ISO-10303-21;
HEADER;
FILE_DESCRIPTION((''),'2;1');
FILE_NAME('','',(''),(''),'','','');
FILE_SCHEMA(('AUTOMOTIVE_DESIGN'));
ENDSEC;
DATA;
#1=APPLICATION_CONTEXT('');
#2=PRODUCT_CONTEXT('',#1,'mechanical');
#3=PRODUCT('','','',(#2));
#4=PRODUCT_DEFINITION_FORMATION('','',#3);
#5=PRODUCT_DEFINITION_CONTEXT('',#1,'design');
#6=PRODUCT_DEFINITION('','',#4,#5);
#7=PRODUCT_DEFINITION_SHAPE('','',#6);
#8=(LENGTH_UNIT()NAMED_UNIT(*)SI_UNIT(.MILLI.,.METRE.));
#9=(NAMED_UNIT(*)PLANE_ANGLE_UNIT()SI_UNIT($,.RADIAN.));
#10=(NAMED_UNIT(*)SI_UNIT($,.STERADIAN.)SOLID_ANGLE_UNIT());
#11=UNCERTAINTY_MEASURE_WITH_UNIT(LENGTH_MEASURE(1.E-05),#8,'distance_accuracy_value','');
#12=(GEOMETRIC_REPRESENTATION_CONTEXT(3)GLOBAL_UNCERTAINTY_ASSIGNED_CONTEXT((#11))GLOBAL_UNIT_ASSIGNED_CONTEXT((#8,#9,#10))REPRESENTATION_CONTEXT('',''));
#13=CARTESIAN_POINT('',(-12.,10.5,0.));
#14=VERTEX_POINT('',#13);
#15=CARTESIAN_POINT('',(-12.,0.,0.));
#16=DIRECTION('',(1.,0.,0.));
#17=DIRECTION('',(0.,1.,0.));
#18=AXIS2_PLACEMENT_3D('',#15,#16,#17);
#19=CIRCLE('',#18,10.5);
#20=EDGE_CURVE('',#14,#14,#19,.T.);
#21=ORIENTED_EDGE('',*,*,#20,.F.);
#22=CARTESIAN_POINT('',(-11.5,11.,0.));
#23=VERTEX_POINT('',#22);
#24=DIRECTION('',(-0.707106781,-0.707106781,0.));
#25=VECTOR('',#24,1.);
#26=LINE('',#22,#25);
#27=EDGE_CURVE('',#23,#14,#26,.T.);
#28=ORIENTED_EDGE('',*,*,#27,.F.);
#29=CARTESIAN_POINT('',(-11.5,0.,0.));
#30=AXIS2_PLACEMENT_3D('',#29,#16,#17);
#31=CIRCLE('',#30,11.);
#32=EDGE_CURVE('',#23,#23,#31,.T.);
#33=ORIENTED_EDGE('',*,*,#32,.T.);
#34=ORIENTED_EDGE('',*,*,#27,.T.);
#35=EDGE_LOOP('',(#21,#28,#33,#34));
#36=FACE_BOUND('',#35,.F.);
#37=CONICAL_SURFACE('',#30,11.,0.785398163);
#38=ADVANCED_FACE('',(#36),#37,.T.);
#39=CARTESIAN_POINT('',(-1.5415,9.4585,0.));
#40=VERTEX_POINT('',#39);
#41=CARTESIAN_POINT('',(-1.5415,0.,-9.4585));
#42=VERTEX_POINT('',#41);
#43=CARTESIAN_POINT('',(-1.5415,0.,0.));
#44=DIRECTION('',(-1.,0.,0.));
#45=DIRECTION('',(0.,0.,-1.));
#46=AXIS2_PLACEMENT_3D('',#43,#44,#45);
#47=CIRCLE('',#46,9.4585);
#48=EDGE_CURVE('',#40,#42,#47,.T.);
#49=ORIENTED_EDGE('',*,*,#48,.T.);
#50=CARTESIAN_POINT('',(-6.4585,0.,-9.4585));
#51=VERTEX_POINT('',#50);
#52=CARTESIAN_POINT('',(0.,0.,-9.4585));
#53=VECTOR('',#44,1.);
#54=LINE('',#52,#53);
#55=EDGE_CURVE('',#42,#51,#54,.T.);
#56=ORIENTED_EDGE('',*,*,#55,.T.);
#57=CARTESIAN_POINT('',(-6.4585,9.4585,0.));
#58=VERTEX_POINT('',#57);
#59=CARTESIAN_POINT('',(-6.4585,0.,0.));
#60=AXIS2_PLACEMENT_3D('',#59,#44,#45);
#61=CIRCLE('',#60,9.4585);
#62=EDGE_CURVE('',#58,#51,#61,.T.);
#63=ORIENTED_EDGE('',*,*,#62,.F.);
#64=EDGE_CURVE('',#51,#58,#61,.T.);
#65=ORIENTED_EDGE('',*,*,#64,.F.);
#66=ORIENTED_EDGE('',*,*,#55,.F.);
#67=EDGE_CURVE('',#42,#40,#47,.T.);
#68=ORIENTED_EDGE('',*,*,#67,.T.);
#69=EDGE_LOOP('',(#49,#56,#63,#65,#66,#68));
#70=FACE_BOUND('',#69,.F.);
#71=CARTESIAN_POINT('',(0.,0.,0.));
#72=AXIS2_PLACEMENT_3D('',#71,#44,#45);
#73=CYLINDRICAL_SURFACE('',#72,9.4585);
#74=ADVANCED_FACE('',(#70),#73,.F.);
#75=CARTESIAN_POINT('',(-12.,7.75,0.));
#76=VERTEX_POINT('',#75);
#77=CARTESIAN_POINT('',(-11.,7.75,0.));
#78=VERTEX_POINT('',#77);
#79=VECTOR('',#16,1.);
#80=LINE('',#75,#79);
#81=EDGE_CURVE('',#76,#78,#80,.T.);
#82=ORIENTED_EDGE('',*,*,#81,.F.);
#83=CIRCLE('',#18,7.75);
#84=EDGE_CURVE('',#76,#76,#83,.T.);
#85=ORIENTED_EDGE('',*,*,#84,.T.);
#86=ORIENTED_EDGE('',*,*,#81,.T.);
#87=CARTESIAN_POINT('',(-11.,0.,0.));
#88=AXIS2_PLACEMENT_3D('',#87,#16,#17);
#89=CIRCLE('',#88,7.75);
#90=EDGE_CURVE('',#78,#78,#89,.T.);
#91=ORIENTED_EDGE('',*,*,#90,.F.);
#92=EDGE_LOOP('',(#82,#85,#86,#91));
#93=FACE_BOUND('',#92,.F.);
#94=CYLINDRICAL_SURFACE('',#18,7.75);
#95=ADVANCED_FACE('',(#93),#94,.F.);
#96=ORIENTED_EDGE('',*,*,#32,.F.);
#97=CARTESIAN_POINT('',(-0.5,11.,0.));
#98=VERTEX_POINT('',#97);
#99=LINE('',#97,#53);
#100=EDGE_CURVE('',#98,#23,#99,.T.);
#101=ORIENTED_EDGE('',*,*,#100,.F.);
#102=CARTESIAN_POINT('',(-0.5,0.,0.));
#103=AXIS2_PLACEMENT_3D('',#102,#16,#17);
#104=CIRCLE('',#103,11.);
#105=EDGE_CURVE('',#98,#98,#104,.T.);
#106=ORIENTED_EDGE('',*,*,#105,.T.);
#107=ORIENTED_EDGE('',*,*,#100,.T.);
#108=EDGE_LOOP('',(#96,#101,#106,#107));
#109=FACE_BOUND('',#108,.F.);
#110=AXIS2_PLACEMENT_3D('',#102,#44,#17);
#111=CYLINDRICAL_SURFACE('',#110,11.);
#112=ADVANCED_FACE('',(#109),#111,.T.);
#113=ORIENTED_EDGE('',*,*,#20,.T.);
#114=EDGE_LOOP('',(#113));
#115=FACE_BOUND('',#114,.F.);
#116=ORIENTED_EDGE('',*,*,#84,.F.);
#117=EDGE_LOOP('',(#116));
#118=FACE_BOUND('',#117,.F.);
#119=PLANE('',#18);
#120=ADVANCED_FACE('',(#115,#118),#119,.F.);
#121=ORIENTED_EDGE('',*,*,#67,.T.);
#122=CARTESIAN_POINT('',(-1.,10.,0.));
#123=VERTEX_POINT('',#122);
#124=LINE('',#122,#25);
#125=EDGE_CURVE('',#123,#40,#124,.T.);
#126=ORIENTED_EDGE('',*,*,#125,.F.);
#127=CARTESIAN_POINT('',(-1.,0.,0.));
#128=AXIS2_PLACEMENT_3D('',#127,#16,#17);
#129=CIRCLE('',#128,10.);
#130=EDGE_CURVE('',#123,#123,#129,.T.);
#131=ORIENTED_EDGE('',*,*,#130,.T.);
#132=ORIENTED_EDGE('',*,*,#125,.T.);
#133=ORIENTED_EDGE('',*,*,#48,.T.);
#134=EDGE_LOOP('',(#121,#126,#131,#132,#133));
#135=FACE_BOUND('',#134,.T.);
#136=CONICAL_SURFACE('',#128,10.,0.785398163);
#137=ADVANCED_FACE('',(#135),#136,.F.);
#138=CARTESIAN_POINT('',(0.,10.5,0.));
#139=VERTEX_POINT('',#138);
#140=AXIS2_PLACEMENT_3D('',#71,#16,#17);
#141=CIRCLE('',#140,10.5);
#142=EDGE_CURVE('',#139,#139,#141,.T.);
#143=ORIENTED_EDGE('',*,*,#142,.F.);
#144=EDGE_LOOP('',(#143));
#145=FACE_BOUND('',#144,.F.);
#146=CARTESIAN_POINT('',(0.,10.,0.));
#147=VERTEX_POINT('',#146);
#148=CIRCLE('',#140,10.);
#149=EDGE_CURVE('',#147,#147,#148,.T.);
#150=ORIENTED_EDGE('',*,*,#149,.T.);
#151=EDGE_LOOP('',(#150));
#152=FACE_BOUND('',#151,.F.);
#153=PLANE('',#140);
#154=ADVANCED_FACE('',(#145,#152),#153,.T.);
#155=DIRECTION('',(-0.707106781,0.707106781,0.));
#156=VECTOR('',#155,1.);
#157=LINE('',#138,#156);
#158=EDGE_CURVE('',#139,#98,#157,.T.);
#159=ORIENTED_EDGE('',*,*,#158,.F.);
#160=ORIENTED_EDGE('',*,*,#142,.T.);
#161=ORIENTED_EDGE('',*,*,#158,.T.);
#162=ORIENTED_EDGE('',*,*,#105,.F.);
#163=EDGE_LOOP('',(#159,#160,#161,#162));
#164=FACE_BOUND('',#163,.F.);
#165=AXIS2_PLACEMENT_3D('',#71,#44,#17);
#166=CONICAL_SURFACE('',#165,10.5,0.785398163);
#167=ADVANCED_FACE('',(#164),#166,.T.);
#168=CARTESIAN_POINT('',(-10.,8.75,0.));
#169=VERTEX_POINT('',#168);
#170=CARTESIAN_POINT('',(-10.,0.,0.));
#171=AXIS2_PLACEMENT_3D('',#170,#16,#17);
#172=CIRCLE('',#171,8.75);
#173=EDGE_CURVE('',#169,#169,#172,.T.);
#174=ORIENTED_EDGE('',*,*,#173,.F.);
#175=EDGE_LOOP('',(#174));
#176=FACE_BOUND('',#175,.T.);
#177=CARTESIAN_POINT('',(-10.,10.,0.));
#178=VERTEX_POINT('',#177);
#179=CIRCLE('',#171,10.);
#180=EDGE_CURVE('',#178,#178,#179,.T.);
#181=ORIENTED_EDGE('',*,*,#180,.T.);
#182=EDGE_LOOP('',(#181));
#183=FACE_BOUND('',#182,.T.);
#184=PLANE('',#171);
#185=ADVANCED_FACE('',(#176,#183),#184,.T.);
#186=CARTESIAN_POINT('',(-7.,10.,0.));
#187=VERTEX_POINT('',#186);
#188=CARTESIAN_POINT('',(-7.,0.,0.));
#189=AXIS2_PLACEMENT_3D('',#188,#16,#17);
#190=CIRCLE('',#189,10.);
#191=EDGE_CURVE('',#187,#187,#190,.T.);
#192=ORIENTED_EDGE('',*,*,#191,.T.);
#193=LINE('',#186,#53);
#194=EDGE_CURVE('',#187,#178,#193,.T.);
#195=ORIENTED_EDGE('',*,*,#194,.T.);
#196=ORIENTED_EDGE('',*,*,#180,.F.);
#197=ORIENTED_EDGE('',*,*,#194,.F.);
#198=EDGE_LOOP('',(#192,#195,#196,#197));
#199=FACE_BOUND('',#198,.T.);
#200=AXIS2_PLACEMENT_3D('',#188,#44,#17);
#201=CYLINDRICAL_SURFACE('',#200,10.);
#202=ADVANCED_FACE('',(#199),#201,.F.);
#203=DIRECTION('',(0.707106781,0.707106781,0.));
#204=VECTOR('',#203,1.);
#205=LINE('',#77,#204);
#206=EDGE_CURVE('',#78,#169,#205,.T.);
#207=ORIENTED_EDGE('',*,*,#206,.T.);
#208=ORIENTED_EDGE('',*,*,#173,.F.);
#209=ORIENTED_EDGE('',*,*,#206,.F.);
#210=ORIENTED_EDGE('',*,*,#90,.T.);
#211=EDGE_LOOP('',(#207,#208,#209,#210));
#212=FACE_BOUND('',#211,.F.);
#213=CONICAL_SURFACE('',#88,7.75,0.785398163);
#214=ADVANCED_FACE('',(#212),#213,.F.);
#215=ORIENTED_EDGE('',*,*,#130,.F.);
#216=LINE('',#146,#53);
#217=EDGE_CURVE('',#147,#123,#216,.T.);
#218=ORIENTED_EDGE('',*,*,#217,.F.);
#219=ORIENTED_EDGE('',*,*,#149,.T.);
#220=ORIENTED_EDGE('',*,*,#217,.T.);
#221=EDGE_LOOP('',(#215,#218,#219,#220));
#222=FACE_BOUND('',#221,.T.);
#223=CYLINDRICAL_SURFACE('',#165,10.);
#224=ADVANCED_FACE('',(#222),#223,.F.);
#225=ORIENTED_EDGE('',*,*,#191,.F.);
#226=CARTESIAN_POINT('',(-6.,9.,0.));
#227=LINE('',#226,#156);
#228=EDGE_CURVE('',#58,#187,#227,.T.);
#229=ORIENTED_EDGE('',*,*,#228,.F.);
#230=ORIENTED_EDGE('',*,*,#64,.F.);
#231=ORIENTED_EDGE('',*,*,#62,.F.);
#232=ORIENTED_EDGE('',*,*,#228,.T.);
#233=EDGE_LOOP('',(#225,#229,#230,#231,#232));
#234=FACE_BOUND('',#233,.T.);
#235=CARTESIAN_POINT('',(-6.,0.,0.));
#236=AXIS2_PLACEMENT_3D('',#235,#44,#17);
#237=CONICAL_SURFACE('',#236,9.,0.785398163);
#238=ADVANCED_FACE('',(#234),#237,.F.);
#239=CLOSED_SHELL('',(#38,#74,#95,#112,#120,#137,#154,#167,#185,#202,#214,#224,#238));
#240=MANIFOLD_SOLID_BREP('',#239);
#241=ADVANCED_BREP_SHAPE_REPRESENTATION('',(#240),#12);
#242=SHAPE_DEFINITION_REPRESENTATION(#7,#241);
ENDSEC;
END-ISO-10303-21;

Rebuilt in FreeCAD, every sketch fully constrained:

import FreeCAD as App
import Part
import Sketcher
Q = App.Units.Quantity

doc = App.newDocument("Part")
body = doc.addObject("PartDesign::Body", "Body")

sketch1 = body.newObject("Sketcher::SketchObject", "Sketch")
sketch1.AttachmentSupport = (doc.getObject("XY_Plane"), [""])
sketch1.MapMode = "FlatFace"
sketch1.addGeometry([
    Part.LineSegment(App.Vector(-1, 10, 0), App.Vector(0, 10, 0)),
    Part.LineSegment(App.Vector(0, 10, 0), App.Vector(0, 10.5, 0)),
    Part.LineSegment(App.Vector(0, 10.5, 0), App.Vector(-0.5, 11, 0)),
    Part.LineSegment(App.Vector(-0.5, 11, 0), App.Vector(-11.5, 11, 0)),
    Part.LineSegment(App.Vector(-11.5, 11, 0), App.Vector(-12, 10.5, 0)),
    Part.LineSegment(App.Vector(-12, 10.5, 0), App.Vector(-12, 7.75, 0)),
    Part.LineSegment(App.Vector(-12, 7.75, 0), App.Vector(-11, 7.75, 0)),
    Part.LineSegment(App.Vector(-11, 7.75, 0), App.Vector(-10, 8.75, 0)),
    Part.LineSegment(App.Vector(-10, 8.75, 0), App.Vector(-10, 10, 0)),
    Part.LineSegment(App.Vector(-10, 10, 0), App.Vector(-7, 10, 0)),
    Part.LineSegment(App.Vector(-7, 10, 0), App.Vector(-6, 9, 0)),
    Part.LineSegment(App.Vector(-6, 9, 0), App.Vector(-2, 9, 0)),
    Part.LineSegment(App.Vector(-2, 9, 0), App.Vector(-1, 10, 0)),
], False)
sketch1.addConstraint([
    Sketcher.Constraint("Coincident", 0, 2, 1, 1),
    Sketcher.Constraint("Coincident", 1, 2, 2, 1),
    Sketcher.Constraint("Coincident", 2, 2, 3, 1),
    Sketcher.Constraint("Coincident", 3, 2, 4, 1),
    Sketcher.Constraint("Coincident", 4, 2, 5, 1),
    Sketcher.Constraint("Coincident", 5, 2, 6, 1),
    Sketcher.Constraint("Coincident", 6, 2, 7, 1),
    Sketcher.Constraint("Coincident", 7, 2, 8, 1),
    Sketcher.Constraint("Coincident", 8, 2, 9, 1),
    Sketcher.Constraint("Coincident", 9, 2, 10, 1),
    Sketcher.Constraint("Coincident", 10, 2, 11, 1),
    Sketcher.Constraint("Coincident", 11, 2, 12, 1),
    Sketcher.Constraint("Coincident", 12, 2, 0, 1),
    Sketcher.Constraint("Horizontal", 0),
    Sketcher.Constraint("Vertical", 1),
    Sketcher.Constraint("Horizontal", 3),
    Sketcher.Constraint("Vertical", 5),
    Sketcher.Constraint("Horizontal", 6),
    Sketcher.Constraint("Vertical", 8),
    Sketcher.Constraint("Horizontal", 9),
    Sketcher.Constraint("Horizontal", 11),
    Sketcher.Constraint("PointOnObject", 0, 2, -2),
    Sketcher.Constraint("Perpendicular", 2, 4),
    Sketcher.Constraint("Parallel", 4, 7),
    Sketcher.Constraint("Perpendicular", 7, 10),
    Sketcher.Constraint("Perpendicular", 10, 12),
    Sketcher.Constraint("Horizontal", 1, 2, 4, 2),
    Sketcher.Constraint("Horizontal", 0, 2, 8, 2),
    Sketcher.Constraint("Equal", 0, 6),
    Sketcher.Constraint("Equal", 2, 4),
    Sketcher.Constraint("Equal", 7, 10),
    Sketcher.Constraint("DistanceX", 0, 1, 0, 2, Q("1 mm")),
    Sketcher.Constraint("DistanceX", 9, 1, 9, 2, Q("3 mm")),
    Sketcher.Constraint("DistanceY", 1, 1, 1, 2, Q("0.5 mm")),
    Sketcher.Constraint("DistanceY", -1, 1, 0, 2, Q("10 mm")),
    Sketcher.Constraint("DistanceX", 4, 2, -1, 1, Q("12 mm")),
    Sketcher.Constraint("DistanceX", 7, 2, -1, 1, Q("10 mm")),
    Sketcher.Constraint("DistanceY", 0, 2, 2, 2, Q("1 mm")),
    Sketcher.Constraint("DistanceY", 5, 2, 5, 1, Q("2.75 mm")),
])
revolution = body.newObject("PartDesign::Revolution", "Revolution")
revolution.Profile = sketch1
revolution.ReferenceAxis = (sketch1, ["H_Axis"])
revolution.Angle = 360

sketch2 = body.newObject("Sketcher::SketchObject", "Sketch001")
sketch2.AttachmentSupport = (doc.getObject("YZ_Plane"), [""])
sketch2.MapMode = "FlatFace"
sketch2.addGeometry(Part.Circle(App.Vector(0, 0, 0), App.Vector(0, 0, 1), 9.4585), False)
sketch2.addConstraint([
    Sketcher.Constraint("Coincident", 0, 3, -1, 1),
    Sketcher.Constraint("Diameter", 0, Q("18.917 mm")),
])
doc.recompute()
hole = body.newObject("PartDesign::Hole", "Hole")
hole.Profile = sketch2
hole.ThreadType = "None"
hole.Diameter = 18.917
hole.DepthType = "Dimension"
hole.Depth = 8
hole.DrillPoint = "Flat"

doc.recompute()
